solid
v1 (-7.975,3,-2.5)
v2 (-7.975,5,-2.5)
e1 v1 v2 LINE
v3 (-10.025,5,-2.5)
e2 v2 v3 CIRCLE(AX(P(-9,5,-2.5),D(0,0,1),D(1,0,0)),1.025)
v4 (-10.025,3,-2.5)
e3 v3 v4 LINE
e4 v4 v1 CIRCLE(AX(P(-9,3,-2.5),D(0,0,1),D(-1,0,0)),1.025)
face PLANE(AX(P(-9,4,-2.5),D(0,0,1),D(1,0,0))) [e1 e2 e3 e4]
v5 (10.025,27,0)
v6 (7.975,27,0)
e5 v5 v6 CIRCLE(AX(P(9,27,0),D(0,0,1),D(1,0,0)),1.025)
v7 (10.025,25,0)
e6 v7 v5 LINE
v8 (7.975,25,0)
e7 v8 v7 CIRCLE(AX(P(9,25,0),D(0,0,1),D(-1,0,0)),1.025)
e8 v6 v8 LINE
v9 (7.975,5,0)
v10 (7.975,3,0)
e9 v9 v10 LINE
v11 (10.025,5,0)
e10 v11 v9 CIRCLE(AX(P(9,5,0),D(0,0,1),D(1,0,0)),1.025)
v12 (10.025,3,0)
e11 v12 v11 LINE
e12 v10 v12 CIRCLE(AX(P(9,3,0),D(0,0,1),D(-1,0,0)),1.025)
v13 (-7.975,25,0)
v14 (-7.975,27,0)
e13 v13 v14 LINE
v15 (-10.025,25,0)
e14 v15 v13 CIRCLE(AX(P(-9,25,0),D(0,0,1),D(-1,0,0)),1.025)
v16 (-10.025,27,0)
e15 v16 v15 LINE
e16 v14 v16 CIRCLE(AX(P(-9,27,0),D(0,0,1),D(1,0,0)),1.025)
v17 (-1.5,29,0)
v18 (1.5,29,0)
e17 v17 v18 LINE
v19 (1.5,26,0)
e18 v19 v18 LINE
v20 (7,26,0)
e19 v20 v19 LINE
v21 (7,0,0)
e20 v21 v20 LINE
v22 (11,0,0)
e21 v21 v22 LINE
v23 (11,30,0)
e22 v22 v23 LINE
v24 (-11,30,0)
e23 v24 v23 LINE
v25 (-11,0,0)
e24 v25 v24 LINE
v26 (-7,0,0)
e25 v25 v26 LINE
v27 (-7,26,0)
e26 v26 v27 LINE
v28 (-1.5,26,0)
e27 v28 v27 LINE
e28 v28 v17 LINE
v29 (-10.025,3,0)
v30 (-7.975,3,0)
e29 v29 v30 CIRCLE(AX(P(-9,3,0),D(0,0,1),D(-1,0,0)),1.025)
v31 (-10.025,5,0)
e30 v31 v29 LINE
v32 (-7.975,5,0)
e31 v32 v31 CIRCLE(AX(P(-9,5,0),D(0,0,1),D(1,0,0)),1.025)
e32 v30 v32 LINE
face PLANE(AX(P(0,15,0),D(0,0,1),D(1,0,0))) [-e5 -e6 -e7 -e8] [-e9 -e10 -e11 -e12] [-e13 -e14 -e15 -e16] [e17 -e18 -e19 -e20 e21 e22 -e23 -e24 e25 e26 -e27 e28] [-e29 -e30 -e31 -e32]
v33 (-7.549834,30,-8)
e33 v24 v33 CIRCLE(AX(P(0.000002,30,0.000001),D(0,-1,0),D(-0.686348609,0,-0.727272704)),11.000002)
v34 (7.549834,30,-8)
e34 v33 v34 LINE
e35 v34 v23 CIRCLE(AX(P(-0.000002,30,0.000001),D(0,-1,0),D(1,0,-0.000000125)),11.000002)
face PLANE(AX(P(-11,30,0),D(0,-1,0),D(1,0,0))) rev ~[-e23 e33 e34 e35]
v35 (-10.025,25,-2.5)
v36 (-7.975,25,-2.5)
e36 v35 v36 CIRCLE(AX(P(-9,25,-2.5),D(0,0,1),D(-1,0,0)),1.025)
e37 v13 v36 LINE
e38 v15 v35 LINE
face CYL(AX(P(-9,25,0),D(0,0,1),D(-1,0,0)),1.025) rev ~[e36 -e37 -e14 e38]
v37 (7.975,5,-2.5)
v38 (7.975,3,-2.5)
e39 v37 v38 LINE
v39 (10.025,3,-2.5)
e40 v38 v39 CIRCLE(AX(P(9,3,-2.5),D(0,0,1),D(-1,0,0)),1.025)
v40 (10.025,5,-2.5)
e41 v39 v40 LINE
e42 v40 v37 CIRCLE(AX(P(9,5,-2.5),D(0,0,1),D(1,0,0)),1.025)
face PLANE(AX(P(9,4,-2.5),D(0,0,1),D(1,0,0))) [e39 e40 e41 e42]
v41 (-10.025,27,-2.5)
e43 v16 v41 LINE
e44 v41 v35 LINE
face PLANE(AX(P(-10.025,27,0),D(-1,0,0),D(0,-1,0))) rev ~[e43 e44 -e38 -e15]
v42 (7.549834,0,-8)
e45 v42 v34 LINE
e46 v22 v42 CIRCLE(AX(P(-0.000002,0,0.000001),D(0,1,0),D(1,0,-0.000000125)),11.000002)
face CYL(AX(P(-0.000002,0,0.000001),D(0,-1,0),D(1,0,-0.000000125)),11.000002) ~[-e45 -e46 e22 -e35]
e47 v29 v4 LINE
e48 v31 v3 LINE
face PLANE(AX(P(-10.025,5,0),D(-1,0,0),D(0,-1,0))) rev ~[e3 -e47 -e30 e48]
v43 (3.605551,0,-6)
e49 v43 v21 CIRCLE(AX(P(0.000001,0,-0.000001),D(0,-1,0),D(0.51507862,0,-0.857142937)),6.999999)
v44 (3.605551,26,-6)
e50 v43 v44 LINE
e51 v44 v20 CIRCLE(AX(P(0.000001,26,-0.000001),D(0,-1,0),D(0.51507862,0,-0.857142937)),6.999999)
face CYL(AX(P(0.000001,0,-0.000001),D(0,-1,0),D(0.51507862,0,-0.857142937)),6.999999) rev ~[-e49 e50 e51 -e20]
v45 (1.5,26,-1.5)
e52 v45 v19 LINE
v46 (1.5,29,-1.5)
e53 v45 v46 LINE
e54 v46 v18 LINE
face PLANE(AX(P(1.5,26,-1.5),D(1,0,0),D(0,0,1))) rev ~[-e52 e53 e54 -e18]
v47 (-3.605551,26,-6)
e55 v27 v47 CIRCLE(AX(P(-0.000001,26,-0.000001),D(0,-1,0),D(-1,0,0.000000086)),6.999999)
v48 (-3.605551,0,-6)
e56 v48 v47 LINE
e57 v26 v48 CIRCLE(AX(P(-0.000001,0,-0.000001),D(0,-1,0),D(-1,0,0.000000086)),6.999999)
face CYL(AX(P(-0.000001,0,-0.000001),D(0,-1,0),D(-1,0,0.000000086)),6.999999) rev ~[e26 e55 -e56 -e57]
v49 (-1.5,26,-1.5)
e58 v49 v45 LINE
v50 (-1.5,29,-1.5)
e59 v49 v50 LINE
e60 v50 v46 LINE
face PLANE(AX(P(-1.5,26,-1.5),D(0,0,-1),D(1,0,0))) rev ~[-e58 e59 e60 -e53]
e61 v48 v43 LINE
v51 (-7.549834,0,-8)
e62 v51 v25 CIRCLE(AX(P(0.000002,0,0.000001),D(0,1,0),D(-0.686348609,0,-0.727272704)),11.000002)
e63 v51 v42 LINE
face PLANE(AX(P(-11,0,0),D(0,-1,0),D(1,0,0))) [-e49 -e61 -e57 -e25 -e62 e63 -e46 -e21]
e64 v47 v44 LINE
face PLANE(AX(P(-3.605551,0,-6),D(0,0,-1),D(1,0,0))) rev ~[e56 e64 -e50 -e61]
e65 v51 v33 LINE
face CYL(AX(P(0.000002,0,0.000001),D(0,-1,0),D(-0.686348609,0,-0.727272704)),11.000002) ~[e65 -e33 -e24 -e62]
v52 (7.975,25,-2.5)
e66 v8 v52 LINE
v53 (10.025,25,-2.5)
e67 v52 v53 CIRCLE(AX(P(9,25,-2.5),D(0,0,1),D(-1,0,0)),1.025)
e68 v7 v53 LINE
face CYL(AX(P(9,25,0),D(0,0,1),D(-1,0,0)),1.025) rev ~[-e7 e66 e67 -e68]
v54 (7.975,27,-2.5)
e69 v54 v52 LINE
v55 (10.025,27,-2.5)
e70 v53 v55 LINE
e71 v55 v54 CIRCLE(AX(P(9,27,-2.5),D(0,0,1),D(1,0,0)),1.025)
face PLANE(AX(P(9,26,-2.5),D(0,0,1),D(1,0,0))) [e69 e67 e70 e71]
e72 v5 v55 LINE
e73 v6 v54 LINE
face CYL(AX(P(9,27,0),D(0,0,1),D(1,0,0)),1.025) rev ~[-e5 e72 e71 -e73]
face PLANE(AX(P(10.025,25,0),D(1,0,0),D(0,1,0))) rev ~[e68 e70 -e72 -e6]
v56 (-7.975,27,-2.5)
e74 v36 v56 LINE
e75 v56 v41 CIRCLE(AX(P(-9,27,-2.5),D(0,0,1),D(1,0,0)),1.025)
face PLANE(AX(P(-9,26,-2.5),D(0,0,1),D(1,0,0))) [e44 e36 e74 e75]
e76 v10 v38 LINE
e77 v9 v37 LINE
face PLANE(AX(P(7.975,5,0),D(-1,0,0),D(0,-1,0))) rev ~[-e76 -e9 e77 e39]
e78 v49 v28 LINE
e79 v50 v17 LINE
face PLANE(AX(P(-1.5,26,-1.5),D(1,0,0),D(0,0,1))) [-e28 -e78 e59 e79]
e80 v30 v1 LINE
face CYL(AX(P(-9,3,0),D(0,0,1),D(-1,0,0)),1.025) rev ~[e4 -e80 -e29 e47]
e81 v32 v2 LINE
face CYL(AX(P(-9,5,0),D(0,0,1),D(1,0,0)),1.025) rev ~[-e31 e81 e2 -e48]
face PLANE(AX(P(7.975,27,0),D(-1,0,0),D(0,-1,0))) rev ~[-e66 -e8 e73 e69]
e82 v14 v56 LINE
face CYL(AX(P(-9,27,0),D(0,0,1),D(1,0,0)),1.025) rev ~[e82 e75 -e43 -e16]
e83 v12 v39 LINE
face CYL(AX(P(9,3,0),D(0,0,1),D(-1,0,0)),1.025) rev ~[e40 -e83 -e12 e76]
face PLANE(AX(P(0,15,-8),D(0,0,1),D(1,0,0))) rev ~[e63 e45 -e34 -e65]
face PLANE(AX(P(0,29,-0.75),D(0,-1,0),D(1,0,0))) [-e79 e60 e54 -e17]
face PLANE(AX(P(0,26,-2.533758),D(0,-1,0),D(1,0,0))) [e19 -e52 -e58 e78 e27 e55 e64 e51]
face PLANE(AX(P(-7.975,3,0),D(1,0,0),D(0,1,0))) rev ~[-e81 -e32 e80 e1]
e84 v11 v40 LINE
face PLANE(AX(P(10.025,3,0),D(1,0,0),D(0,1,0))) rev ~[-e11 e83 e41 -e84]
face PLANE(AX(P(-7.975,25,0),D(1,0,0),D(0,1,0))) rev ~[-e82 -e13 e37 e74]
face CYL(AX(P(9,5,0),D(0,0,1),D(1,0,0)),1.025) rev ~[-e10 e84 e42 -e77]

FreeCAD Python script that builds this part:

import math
import FreeCAD as App
import Part
import Sketcher

doc = App.newDocument("Part")
params = doc.addObject("Spreadsheet::Sheet", "Params")
for row, (alias, value) in enumerate([
    ("sketch1_width", "22 mm"),
    ("sketch1_height", "30 mm"),
    ("pad1_length", "8 mm"),
    ("sketch2_height", "8 mm"),
    ("sketch3_height", "2 mm"),
    ("pocket2_length", "2.5 mm"),
    ("sketch4_radius", "6.999999 mm"),
    ("pocket3_length", "26 mm"),
    ("sketch5_width", "3 mm"),
    ("sketch5_height", "1.5 mm"),
    ("pocket4_length", "3 mm"),
], start=1):
    params.set(f"A{row}", alias)
    params.set(f"B{row}", "=" + value)
    params.setAlias(f"B{row}", alias)

body = doc.addObject("PartDesign::Body", "Body")

# Sketch on XY plane
sketch1 = body.newObject("Sketcher::SketchObject", "Sketch")
sketch1.AttachmentSupport = (doc.getObject("XY_Plane"), [""])
sketch1.MapMode = "FlatFace"
sketch1.addGeometry(Part.LineSegment(App.Vector(-11, 30, 0), App.Vector(-11, 0, 0)), False)
sketch1.addGeometry(Part.LineSegment(App.Vector(-11, 0, 0), App.Vector(11, 0, 0)), False)
sketch1.addGeometry(Part.LineSegment(App.Vector(11, 0, 0), App.Vector(11, 30, 0)), False)
sketch1.addGeometry(Part.LineSegment(App.Vector(11, 30, 0), App.Vector(-11, 30, 0)), False)
sketch1.addConstraint(Sketcher.Constraint("Coincident", 0, 2, 1, 1))
sketch1.addConstraint(Sketcher.Constraint("Coincident", 1, 2, 2, 1))
sketch1.addConstraint(Sketcher.Constraint("Coincident", 2, 2, 3, 1))
sketch1.addConstraint(Sketcher.Constraint("Coincident", 3, 2, 0, 1))
sketch1.addConstraint(Sketcher.Constraint("Vertical", 0))
sketch1.addConstraint(Sketcher.Constraint("Horizontal", 1))
sketch1.addConstraint(Sketcher.Constraint("Vertical", 2))
sketch1.addConstraint(Sketcher.Constraint("Horizontal", 3))
sketch1.addConstraint(Sketcher.Constraint("Symmetric", 0, 2, 1, 2, -1, 1))
sketch1.addConstraint(Sketcher.Constraint("DistanceX", 1, 1, 1, 2, 22.0))
sketch1.addConstraint(Sketcher.Constraint("DistanceY", 0, 2, 0, 1, 30.0))
sketch1.setExpression("Constraints[9]", "Params.sketch1_width")
sketch1.setExpression("Constraints[10]", "Params.sketch1_height")
pad1 = body.newObject("PartDesign::Pad", "Pad")
pad1.Profile = sketch1
pad1.setExpression("Length", "Params.pad1_length")
pad1.Reversed = True

# Sketch on XZ plane
sketch2 = body.newObject("Sketcher::SketchObject", "Sketch001")
sketch2.AttachmentSupport = (doc.getObject("XZ_Plane"), [""])
sketch2.MapMode = "FlatFace"
sketch2.addGeometry(Part.LineSegment(App.Vector(11, -8, 0), App.Vector(11, 0, 0)), False)
sketch2.addGeometry(Part.ArcOfCircle(Part.Circle(App.Vector(-0.000002, 0.000001, 0), App.Vector(0, 0, 1), 11.000002), math.radians(-46.65824), math.radians(-0.000007)), False)
sketch2.addGeometry(Part.LineSegment(App.Vector(7.549834, -8, 0), App.Vector(11, -8, 0)), False)
sketch2.addGeometry(Part.ArcOfCircle(Part.Circle(App.Vector(0.000002, 0.000001, 0), App.Vector(0, 0, 1), 11.000002), math.radians(-179.999993), math.radians(-133.34176)), False)
sketch2.addGeometry(Part.LineSegment(App.Vector(-11, 0, 0), App.Vector(-11, -8, 0)), False)
sketch2.addGeometry(Part.LineSegment(App.Vector(-11, -8, 0), App.Vector(-7.549834, -8, 0)), False)
sketch2.addConstraint(Sketcher.Constraint("Tangent", 0, 2, 1, 2))
sketch2.addConstraint(Sketcher.Constraint("Coincident", 1, 1, 2, 1))
sketch2.addConstraint(Sketcher.Constraint("Coincident", 2, 2, 0, 1))
sketch2.addConstraint(Sketcher.Constraint("Tangent", 3, 1, 4, 1))
sketch2.addConstraint(Sketcher.Constraint("Coincident", 4, 2, 5, 1))
sketch2.addConstraint(Sketcher.Constraint("Coincident", 5, 2, 3, 2))
sketch2.addConstraint(Sketcher.Constraint("Vertical", 0))
sketch2.addConstraint(Sketcher.Constraint("Horizontal", 2))
sketch2.addConstraint(Sketcher.Constraint("Vertical", 4))
sketch2.addConstraint(Sketcher.Constraint("Horizontal", 5))
sketch2.addConstraint(Sketcher.Constraint("Coincident", 1, 3, -1, 1))
sketch2.addConstraint(Sketcher.Constraint("Coincident", 3, 3, -1, 1))
sketch2.addConstraint(Sketcher.Constraint("Equal", 1, 3))
sketch2.addConstraint(Sketcher.Constraint("Horizontal", 2, 2, 4, 2))
sketch2.addConstraint(Sketcher.Constraint("DistanceY", 0, 1, 0, 2, 8.0))
sketch2.addConstraint(Sketcher.Constraint("DistanceX", -1, 1, 0, 2, 11.0))
sketch2.setExpression("Constraints[14]", "Params.sketch2_height")
pocket1 = body.newObject("PartDesign::Pocket", "Pocket")
pocket1.Profile = sketch2
pocket1.Type = "ThroughAll"

# Sketch on XY plane
sketch3 = body.newObject("Sketcher::SketchObject", "Sketch002")
sketch3.AttachmentSupport = (doc.getObject("XY_Plane"), [""])
sketch3.MapMode = "FlatFace"
sketch3.addGeometry(Part.ArcOfCircle(Part.Circle(App.Vector(-9, 5, 0), App.Vector(0, 0, 1), 1.025), math.radians(0), math.radians(180)), False)
sketch3.addGeometry(Part.LineSegment(App.Vector(-10.025, 5, 0), App.Vector(-10.025, 3, 0)), False)
sketch3.addGeometry(Part.ArcOfCircle(Part.Circle(App.Vector(-9, 3, 0), App.Vector(0, 0, 1), 1.025), math.radians(180), math.radians(360)), False)
sketch3.addGeometry(Part.LineSegment(App.Vector(-7.975, 3, 0), App.Vector(-7.975, 5, 0)), False)
sketch3.addGeometry(Part.ArcOfCircle(Part.Circle(App.Vector(9, 5, 0), App.Vector(0, 0, 1), 1.025), math.radians(0), math.radians(180)), False)
sketch3.addGeometry(Part.LineSegment(App.Vector(7.975, 5, 0), App.Vector(7.975, 3, 0)), False)
sketch3.addGeometry(Part.ArcOfCircle(Part.Circle(App.Vector(9, 3, 0), App.Vector(0, 0, 1), 1.025), math.radians(180), math.radians(360)), False)
sketch3.addGeometry(Part.LineSegment(App.Vector(10.025, 3, 0), App.Vector(10.025, 5, 0)), False)
sketch3.addGeometry(Part.ArcOfCircle(Part.Circle(App.Vector(-9, 27, 0), App.Vector(0, 0, 1), 1.025), math.radians(0), math.radians(180)), False)
sketch3.addGeometry(Part.LineSegment(App.Vector(-10.025, 27, 0), App.Vector(-10.025, 25, 0)), False)
sketch3.addGeometry(Part.ArcOfCircle(Part.Circle(App.Vector(-9, 25, 0), App.Vector(0, 0, 1), 1.025), math.radians(180), math.radians(360)), False)
sketch3.addGeometry(Part.LineSegment(App.Vector(-7.975, 25, 0), App.Vector(-7.975, 27, 0)), False)
sketch3.addGeometry(Part.ArcOfCircle(Part.Circle(App.Vector(9, 27, 0), App.Vector(0, 0, 1), 1.025), math.radians(0), math.radians(180)), False)
sketch3.addGeometry(Part.LineSegment(App.Vector(7.975, 27, 0), App.Vector(7.975, 25, 0)), False)
sketch3.addGeometry(Part.ArcOfCircle(Part.Circle(App.Vector(9, 25, 0), App.Vector(0, 0, 1), 1.025), math.radians(180), math.radians(360)), False)
sketch3.addGeometry(Part.LineSegment(App.Vector(10.025, 25, 0), App.Vector(10.025, 27, 0)), False)
sketch3.addConstraint(Sketcher.Constraint("Tangent", 0, 2, 1, 1))
sketch3.addConstraint(Sketcher.Constraint("Tangent", 1, 2, 2, 1))
sketch3.addConstraint(Sketcher.Constraint("Tangent", 2, 2, 3, 1))
sketch3.addConstraint(Sketcher.Constraint("Tangent", 3, 2, 0, 1))
sketch3.addConstraint(Sketcher.Constraint("Tangent", 4, 2, 5, 1))
sketch3.addConstraint(Sketcher.Constraint("Tangent", 5, 2, 6, 1))
sketch3.addConstraint(Sketcher.Constraint("Tangent", 6, 2, 7, 1))
sketch3.addConstraint(Sketcher.Constraint("Tangent", 7, 2, 4, 1))
sketch3.addConstraint(Sketcher.Constraint("Tangent", 8, 2, 9, 1))
sketch3.addConstraint(Sketcher.Constraint("Tangent", 9, 2, 10, 1))
sketch3.addConstraint(Sketcher.Constraint("Tangent", 10, 2, 11, 1))
sketch3.addConstraint(Sketcher.Constraint("Tangent", 11, 2, 8, 1))
sketch3.addConstraint(Sketcher.Constraint("Tangent", 12, 2, 13, 1))
sketch3.addConstraint(Sketcher.Constraint("Tangent", 13, 2, 14, 1))
sketch3.addConstraint(Sketcher.Constraint("Tangent", 14, 2, 15, 1))
sketch3.addConstraint(Sketcher.Constraint("Tangent", 15, 2, 12, 1))
sketch3.addConstraint(Sketcher.Constraint("Vertical", 1))
sketch3.addConstraint(Sketcher.Constraint("Vertical", 3))
sketch3.addConstraint(Sketcher.Constraint("Vertical", 5))
sketch3.addConstraint(Sketcher.Constraint("Vertical", 7))
sketch3.addConstraint(Sketcher.Constraint("Vertical", 9))
sketch3.addConstraint(Sketcher.Constraint("Vertical", 11))
sketch3.addConstraint(Sketcher.Constraint("Vertical", 13))
sketch3.addConstraint(Sketcher.Constraint("Vertical", 15))
sketch3.addConstraint(Sketcher.Constraint("Equal", 2, 4))
sketch3.addConstraint(Sketcher.Constraint("Equal", 6, 8))
sketch3.addConstraint(Sketcher.Constraint("Equal", 10, 12))
sketch3.addConstraint(Sketcher.Constraint("Symmetric", 0, 3, 4, 3, -2))
sketch3.addConstraint(Sketcher.Constraint("Symmetric", 8, 3, 12, 3, -2))
sketch3.addConstraint(Sketcher.Constraint("Horizontal", 2, 3, 6, 3))
sketch3.addConstraint(Sketcher.Constraint("Horizontal", 10, 3, 14, 3))
sketch3.addConstraint(Sketcher.Constraint("Vertical", 2, 3, 8, 3))
sketch3.addConstraint(Sketcher.Constraint("Equal", 7, 9))
sketch3.addConstraint(Sketcher.Constraint("DistanceY", 1, 2, 1, 1, 2.0))
sketch3.addConstraint(Sketcher.Constraint("DistanceX", 0, 3, -1, 1, 9.0))
sketch3.addConstraint(Sketcher.Constraint("DistanceY", -1, 1, 0, 3, 5.0))
sketch3.addConstraint(Sketcher.Constraint("DistanceY", -1, 1, 8, 3, 27.0))
sketch3.addConstraint(Sketcher.Constraint("Radius", 0, 1.025))
sketch3.setExpression("Constraints[33]", "Params.sketch3_height")
pocket2 = body.newObject("PartDesign::Pocket", "Pocket001")
pocket2.Profile = sketch3
pocket2.setExpression("Length", "Params.pocket2_length")

# Sketch on XZ plane
sketch4 = body.newObject("Sketcher::SketchObject", "Sketch003")
sketch4.AttachmentSupport = (doc.getObject("XZ_Plane"), [""])
sketch4.MapMode = "FlatFace"
sketch4.addGeometry(Part.LineSegment(App.Vector(7, 0, 0), App.Vector(-7, 0, 0)), False)
sketch4.addGeometry(Part.ArcOfCircle(Part.Circle(App.Vector(-0.000001, -0.000001, 0), App.Vector(0, 0, 1), 6.999999), math.radians(179.999995), math.radians(238.99729)), False)
sketch4.addGeometry(Part.LineSegment(App.Vector(-3.605551, -6, 0), App.Vector(3.605551, -6, 0)), False)
sketch4.addGeometry(Part.ArcOfCircle(Part.Circle(App.Vector(0.000001, -0.000001, 0), App.Vector(0, 0, 1), 6.999999), math.radians(-58.99729), math.radians(0.000005)), False)
sketch4.addConstraint(Sketcher.Constraint("Coincident", 0, 2, 1, 1))
sketch4.addConstraint(Sketcher.Constraint("Coincident", 1, 2, 2, 1))
sketch4.addConstraint(Sketcher.Constraint("Coincident", 2, 2, 3, 1))
sketch4.addConstraint(Sketcher.Constraint("Coincident", 3, 2, 0, 1))
sketch4.addConstraint(Sketcher.Constraint("Horizontal", 0))
sketch4.addConstraint(Sketcher.Constraint("Horizontal", 2))
sketch4.addConstraint(Sketcher.Constraint("Coincident", 1, 3, -1, 1))
sketch4.addConstraint(Sketcher.Constraint("Coincident", 3, 3, -1, 1))
sketch4.addConstraint(Sketcher.Constraint("Equal", 1, 3))
sketch4.addConstraint(Sketcher.Constraint("PointOnObject", 0, 2, -1))
sketch4.addConstraint(Sketcher.Constraint("Radius", 1, 6.999999))
sketch4.addConstraint(Sketcher.Constraint("DistanceY", 1, 2, -1, 1, 6.0))
sketch4.setExpression("Constraints[10]", "Params.sketch4_radius")
pocket3 = body.newObject("PartDesign::Pocket", "Pocket002")
pocket3.Profile = sketch4
pocket3.setExpression("Length", "Params.pocket3_length")

# Sketch on XZ plane
sketch5 = body.newObject("Sketcher::SketchObject", "Sketch004")
sketch5.AttachmentSupport = (doc.getObject("XZ_Plane"), [""])
sketch5.MapMode = "FlatFace"
sketch5.AttachmentOffset = App.Placement(App.Vector(0, 0, -26), App.Rotation())
sketch5.addGeometry(Part.LineSegment(App.Vector(-1.5, 0, 0), App.Vector(-1.5, -1.5, 0)), False)
sketch5.addGeometry(Part.LineSegment(App.Vector(-1.5, -1.5, 0), App.Vector(1.5, -1.5, 0)), False)
sketch5.addGeometry(Part.LineSegment(App.Vector(1.5, -1.5, 0), App.Vector(1.5, 0, 0)), False)
sketch5.addGeometry(Part.LineSegment(App.Vector(1.5, 0, 0), App.Vector(-1.5, 0, 0)), False)
sketch5.addConstraint(Sketcher.Constraint("Coincident", 0, 2, 1, 1))
sketch5.addConstraint(Sketcher.Constraint("Coincident", 1, 2, 2, 1))
sketch5.addConstraint(Sketcher.Constraint("Coincident", 2, 2, 3, 1))
sketch5.addConstraint(Sketcher.Constraint("Coincident", 3, 2, 0, 1))
sketch5.addConstraint(Sketcher.Constraint("Vertical", 0))
sketch5.addConstraint(Sketcher.Constraint("Horizontal", 1))
sketch5.addConstraint(Sketcher.Constraint("Vertical", 2))
sketch5.addConstraint(Sketcher.Constraint("Horizontal", 3))
sketch5.addConstraint(Sketcher.Constraint("Symmetric", 2, 2, 3, 2, -1, 1))
sketch5.addConstraint(Sketcher.Constraint("DistanceX", 1, 1, 1, 2, 3.0))
sketch5.addConstraint(Sketcher.Constraint("DistanceY", 0, 2, 0, 1, 1.5))
sketch5.setExpression("Constraints[9]", "Params.sketch5_width")
sketch5.setExpression("Constraints[10]", "Params.sketch5_height")
pocket4 = body.newObject("PartDesign::Pocket", "Pocket003")
pocket4.Profile = sketch5
pocket4.setExpression("Length", "Params.pocket4_length")

doc.recompute()
